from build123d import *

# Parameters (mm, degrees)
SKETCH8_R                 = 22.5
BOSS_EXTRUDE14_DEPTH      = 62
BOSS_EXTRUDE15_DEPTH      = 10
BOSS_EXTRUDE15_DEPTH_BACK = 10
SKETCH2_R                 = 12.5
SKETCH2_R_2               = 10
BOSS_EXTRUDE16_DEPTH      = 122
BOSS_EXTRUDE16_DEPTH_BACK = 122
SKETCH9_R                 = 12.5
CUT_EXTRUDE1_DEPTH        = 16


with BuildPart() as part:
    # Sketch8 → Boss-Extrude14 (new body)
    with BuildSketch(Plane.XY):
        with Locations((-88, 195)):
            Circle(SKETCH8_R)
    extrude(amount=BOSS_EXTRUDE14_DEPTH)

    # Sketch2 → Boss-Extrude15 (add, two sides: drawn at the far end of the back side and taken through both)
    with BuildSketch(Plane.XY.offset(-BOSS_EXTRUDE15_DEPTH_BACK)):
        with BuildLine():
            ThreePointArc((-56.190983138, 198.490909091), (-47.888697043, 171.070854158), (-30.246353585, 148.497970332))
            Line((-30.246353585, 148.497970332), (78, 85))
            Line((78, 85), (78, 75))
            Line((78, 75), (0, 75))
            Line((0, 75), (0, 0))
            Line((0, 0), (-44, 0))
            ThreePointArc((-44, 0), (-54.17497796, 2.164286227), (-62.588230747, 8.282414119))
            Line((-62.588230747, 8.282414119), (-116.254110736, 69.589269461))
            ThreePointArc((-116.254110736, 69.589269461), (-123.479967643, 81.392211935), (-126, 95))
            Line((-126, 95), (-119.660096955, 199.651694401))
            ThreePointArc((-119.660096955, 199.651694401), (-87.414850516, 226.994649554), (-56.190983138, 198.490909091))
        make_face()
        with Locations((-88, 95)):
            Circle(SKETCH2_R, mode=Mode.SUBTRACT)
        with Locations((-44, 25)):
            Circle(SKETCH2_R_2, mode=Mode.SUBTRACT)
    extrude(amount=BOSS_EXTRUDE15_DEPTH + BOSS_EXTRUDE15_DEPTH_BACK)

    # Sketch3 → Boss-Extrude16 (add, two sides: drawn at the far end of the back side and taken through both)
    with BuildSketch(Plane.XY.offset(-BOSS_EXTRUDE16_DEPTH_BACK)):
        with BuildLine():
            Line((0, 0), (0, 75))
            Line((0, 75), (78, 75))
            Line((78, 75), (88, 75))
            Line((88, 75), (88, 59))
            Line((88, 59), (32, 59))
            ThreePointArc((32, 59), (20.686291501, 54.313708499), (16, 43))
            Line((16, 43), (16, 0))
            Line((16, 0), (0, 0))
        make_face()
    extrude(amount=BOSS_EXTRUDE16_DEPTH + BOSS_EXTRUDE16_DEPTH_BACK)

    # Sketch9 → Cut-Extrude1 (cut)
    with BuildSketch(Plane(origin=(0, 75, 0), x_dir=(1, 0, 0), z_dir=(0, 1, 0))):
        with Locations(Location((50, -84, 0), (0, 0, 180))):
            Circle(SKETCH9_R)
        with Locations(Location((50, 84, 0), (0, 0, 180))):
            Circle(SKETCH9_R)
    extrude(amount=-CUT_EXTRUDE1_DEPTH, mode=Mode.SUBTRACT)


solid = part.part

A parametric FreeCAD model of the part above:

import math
import FreeCAD as App
import Part
import Sketcher
from FreeCAD import Vector

doc = App.newDocument("Part")
body = doc.addObject("PartDesign::Body", "Body")

sketch1 = doc.addObject("Sketcher::SketchObject", "Sketch")
body.addObject(sketch1)
sketch1.AttachmentSupport = (doc.XY_Plane, [""])
sketch1.MapMode = "FlatFace"
sketch1.addGeometry(Part.Circle(Vector(-88, 195, 0), Vector(0, 0, 1), 22), False)
sketch1.addConstraint([
    Sketcher.Constraint("Diameter", 0, 45.0),
    Sketcher.Constraint("DistanceX", 0, 3, -1, 1, 88.0),
    Sketcher.Constraint("DistanceY", -1, 1, 0, 3, 195.0),
])
pad1 = doc.addObject("PartDesign::Pad", "Pad")
body.addObject(pad1)
pad1.Profile = sketch1
pad1.Length = 62

sketch2 = doc.addObject("Sketcher::SketchObject", "Sketch001")
body.addObject(sketch2)
sketch2.AttachmentSupport = (doc.XY_Plane, [""])
sketch2.MapMode = "FlatFace"
sketch2.addGeometry([
    Part.ArcOfCircle(Part.Circle(Vector(21, 207, 0), Vector(0, 0, 1), 78), math.radians(-174), math.radians(-131)),
    Part.ArcOfCircle(Part.Circle(Vector(-88, 195, 0), Vector(0, 0, 1), 32), math.radians(6), math.radians(172)),
    Part.LineSegment(Vector(-120, 200, 0), Vector(-126, 95, 0)),
    Part.ArcOfCircle(Part.Circle(Vector(-88, 95, 0), Vector(0, 0, 1), 38), math.radians(-180), math.radians(-138)),
    Part.LineSegment(Vector(-116, 70, 0), Vector(-63, 8, 0)),
    Part.ArcOfCircle(Part.Circle(Vector(-44, 25, 0), Vector(0, 0, 1), 25), math.radians(-138), math.radians(-90)),
    Part.LineSegment(Vector(-44, 0, 0), Vector(0, 0, 0)),
    Part.LineSegment(Vector(0, 0, 0), Vector(0, 75, 0)),
    Part.LineSegment(Vector(0, 75, 0), Vector(78, 75, 0)),
    Part.LineSegment(Vector(78, 75, 0), Vector(78, 85, 0)),
    Part.LineSegment(Vector(78, 85, 0), Vector(-30, 148, 0)),
    Part.Circle(Vector(-44, 25, 0), Vector(0, 0, 1), 10),
    Part.Circle(Vector(-88, 95, 0), Vector(0, 0, 1), 12),
], False)
sketch2.addConstraint([
    Sketcher.Constraint("Tangent", 0, 1, 1, 1),
    Sketcher.Constraint("Coincident", 1, 2, 2, 1),
    Sketcher.Constraint("Coincident", 2, 2, 3, 1),
    Sketcher.Constraint("Coincident", 3, 2, 4, 1),
    Sketcher.Constraint("Coincident", 4, 2, 5, 1),
    Sketcher.Constraint("Tangent", 5, 2, 6, 1),
    Sketcher.Constraint("Coincident", 6, 2, 7, 1),
    Sketcher.Constraint("Coincident", 7, 2, 8, 1),
    Sketcher.Constraint("Coincident", 8, 2, 9, 1),
    Sketcher.Constraint("Coincident", 9, 2, 10, 1),
    Sketcher.Constraint("Coincident", 10, 2, 0, 2),
    Sketcher.Constraint("Horizontal", 6),
    Sketcher.Constraint("Vertical", 7),
    Sketcher.Constraint("Horizontal", 8),
    Sketcher.Constraint("Vertical", 9),
    Sketcher.Constraint("Coincident", 6, 2, -1, 1),
    Sketcher.Constraint("Coincident", 11, 3, 5, 3),
    Sketcher.Constraint("Coincident", 12, 3, 3, 3),
    Sketcher.Constraint("Horizontal", 12, 3, 2, 2),
    Sketcher.Constraint("Vertical", 1, 3, 3, 3),
    Sketcher.Constraint("Diameter", 11, 20.0),
    Sketcher.Constraint("Diameter", 12, 25.0),
    Sketcher.Constraint("Radius", 0, 78.0),
    Sketcher.Constraint("Radius", 1, 32.0),
    Sketcher.Constraint("Radius", 3, 38.0),
    Sketcher.Constraint("Radius", 5, 25.0),
    Sketcher.Constraint("DistanceX", 6, 1, 6, 2, 44.0),
    Sketcher.Constraint("DistanceX", 8, 1, 8, 2, 78.0),
    Sketcher.Constraint("DistanceY", 7, 1, 7, 2, 75.0),
    Sketcher.Constraint("DistanceY", 9, 1, 9, 2, 10.0),
    Sketcher.Constraint("DistanceY", -1, 1, 0, 3, 207.0),
    Sketcher.Constraint("DistanceX", 1, 3, -1, 1, 88.0),
    Sketcher.Constraint("DistanceY", -1, 1, 1, 3, 195.0),
    Sketcher.Constraint("DistanceY", -1, 1, 3, 3, 95.0),
    Sketcher.Constraint("Distance", 4, 81.477342),
    Sketcher.Constraint("DistanceX", 3, 2, -1, 1, 116.254111),
    Sketcher.Constraint("DistanceY", -1, 1, 10, 2, 148.49797),
    Sketcher.Constraint("Distance", 2, 104.843557),
])
pad2 = doc.addObject("PartDesign::Pad", "Pad001")
body.addObject(pad2)
pad2.Profile = sketch2
pad2.Type = "TwoLengths"
pad2.Length = 10
pad2.Length2 = 10

sketch3 = doc.addObject("Sketcher::SketchObject", "Sketch002")
body.addObject(sketch3)
sketch3.AttachmentSupport = (doc.XY_Plane, [""])
sketch3.MapMode = "FlatFace"
sketch3.addGeometry([
    Part.LineSegment(Vector(0, 75, 0), Vector(0, 0, 0)),
    Part.LineSegment(Vector(0, 0, 0), Vector(16, 0, 0)),
    Part.LineSegment(Vector(16, 0, 0), Vector(16, 43, 0)),
    Part.ArcOfCircle(Part.Circle(Vector(32, 43, 0), Vector(0, 0, 1), 16), math.radians(90), math.radians(180)),
    Part.LineSegment(Vector(32, 59, 0), Vector(88, 59, 0)),
    Part.LineSegment(Vector(88, 59, 0), Vector(88, 75, 0)),
    Part.LineSegment(Vector(88, 75, 0), Vector(0, 75, 0)),
], False)
sketch3.addConstraint([
    Sketcher.Constraint("Coincident", 0, 2, 1, 1),
    Sketcher.Constraint("Coincident", 1, 2, 2, 1),
    Sketcher.Constraint("Tangent", 2, 2, 3, 2),
    Sketcher.Constraint("Tangent", 3, 1, 4, 1),
    Sketcher.Constraint("Coincident", 4, 2, 5, 1),
    Sketcher.Constraint("Coincident", 5, 2, 6, 1),
    Sketcher.Constraint("Coincident", 6, 2, 0, 1),
    Sketcher.Constraint("Vertical", 0),
    Sketcher.Constraint("Horizontal", 1),
    Sketcher.Constraint("Vertical", 2),
    Sketcher.Constraint("Horizontal", 4),
    Sketcher.Constraint("Vertical", 5),
    Sketcher.Constraint("Horizontal", 6),
    Sketcher.Constraint("Coincident", 0, 2, -1, 1),
    Sketcher.Constraint("Equal", 1, 5),
    Sketcher.Constraint("Radius", 3, 16.0),
    Sketcher.Constraint("DistanceX", 1, 1, 1, 2, 16.0),
    Sketcher.Constraint("DistanceX", 4, 1, 4, 2, 56.0),
    Sketcher.Constraint("DistanceY", 0, 2, 0, 1, 75.0),
])
pad3 = doc.addObject("PartDesign::Pad", "Pad002")
body.addObject(pad3)
pad3.Profile = sketch3
pad3.Type = "TwoLengths"
pad3.Length = 122
pad3.Length2 = 122

sketch4 = doc.addObject("Sketcher::SketchObject", "Sketch003")
body.addObject(sketch4)
sketch4.AttachmentSupport = (doc.XZ_Plane, [""])
sketch4.MapMode = "FlatFace"
sketch4.AttachmentOffset = App.Placement(Vector(0, 0, -75), App.Rotation())
sketch4.addGeometry([
    Part.Circle(Vector(50, 84, 0), Vector(0, 0, 1), 12),
    Part.Circle(Vector(50, -84, 0), Vector(0, 0, 1), 12),
], False)
sketch4.addConstraint([
    Sketcher.Constraint("Equal", 0, 1),
    Sketcher.Constraint("Symmetric", 0, 3, 1, 3, -1),
    Sketcher.Constraint("Diameter", 0, 25.0),
    Sketcher.Constraint("DistanceX", -1, 1, 0, 3, 50.0),
    Sketcher.Constraint("DistanceY", -1, 1, 0, 3, 84.0),
])
pocket1 = doc.addObject("PartDesign::Pocket", "Pocket")
body.addObject(pocket1)
pocket1.Profile = sketch4
pocket1.Length = 16
pocket1.Reversed = True

doc.recompute()
